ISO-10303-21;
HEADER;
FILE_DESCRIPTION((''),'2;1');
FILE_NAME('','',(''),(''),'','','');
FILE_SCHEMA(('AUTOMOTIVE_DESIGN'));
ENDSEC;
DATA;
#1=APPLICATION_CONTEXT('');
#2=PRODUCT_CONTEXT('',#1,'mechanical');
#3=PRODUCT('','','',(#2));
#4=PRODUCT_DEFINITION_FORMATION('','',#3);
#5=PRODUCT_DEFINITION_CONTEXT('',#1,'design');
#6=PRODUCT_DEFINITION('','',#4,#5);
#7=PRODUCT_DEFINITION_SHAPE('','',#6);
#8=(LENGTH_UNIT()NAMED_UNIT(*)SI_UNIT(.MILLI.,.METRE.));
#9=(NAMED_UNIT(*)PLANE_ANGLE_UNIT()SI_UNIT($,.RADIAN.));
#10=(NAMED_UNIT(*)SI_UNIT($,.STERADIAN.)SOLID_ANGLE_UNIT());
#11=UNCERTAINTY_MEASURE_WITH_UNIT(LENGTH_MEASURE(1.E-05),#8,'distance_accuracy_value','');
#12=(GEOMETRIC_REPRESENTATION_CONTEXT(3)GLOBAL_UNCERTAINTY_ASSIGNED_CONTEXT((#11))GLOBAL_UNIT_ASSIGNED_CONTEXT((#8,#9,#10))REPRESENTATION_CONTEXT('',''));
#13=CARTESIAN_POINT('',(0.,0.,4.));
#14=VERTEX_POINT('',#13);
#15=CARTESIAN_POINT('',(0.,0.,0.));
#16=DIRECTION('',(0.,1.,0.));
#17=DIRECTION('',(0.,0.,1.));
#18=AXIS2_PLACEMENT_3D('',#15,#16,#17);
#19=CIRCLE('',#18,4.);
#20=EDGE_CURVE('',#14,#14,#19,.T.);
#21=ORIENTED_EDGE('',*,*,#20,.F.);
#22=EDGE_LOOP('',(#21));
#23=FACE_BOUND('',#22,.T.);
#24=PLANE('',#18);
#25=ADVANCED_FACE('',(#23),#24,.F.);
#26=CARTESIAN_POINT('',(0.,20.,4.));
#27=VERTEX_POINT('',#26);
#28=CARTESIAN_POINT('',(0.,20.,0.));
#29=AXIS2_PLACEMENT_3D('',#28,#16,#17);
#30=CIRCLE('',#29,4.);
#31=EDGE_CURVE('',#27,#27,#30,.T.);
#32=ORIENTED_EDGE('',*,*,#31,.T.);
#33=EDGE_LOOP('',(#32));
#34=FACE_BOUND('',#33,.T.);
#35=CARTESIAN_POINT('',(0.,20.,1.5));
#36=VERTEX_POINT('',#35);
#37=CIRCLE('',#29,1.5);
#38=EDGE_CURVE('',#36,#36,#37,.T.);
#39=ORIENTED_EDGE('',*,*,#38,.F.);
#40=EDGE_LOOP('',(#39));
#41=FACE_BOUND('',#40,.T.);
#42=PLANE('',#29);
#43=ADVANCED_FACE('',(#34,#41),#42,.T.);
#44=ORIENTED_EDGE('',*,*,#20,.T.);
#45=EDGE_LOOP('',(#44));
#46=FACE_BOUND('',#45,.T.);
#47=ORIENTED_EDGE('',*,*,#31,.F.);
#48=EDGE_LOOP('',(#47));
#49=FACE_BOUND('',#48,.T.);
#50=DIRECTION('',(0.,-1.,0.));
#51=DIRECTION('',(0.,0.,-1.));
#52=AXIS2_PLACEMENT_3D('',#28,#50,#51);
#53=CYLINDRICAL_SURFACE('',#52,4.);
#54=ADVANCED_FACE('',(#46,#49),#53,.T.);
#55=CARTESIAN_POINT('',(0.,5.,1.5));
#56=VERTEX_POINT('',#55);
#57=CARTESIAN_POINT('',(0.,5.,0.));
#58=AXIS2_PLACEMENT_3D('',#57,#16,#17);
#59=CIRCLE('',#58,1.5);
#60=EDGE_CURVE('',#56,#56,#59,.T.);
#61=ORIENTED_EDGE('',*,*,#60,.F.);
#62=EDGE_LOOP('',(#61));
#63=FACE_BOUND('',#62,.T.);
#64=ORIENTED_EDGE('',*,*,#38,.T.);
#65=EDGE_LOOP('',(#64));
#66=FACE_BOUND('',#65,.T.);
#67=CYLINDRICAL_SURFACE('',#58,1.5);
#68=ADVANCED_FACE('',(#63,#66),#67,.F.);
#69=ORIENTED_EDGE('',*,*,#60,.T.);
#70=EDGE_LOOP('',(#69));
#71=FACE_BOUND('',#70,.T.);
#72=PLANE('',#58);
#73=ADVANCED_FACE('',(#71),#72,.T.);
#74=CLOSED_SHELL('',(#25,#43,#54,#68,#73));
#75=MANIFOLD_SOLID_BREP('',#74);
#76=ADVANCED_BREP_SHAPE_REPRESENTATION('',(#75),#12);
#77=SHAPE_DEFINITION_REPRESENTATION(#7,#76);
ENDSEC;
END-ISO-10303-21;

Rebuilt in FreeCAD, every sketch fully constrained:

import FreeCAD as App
import Part
import Sketcher

V = App.Vector

doc = App.newDocument("Part")
params = doc.addObject("Spreadsheet::Sheet", "Params")
for row, (alias, value) in enumerate([
    ("sketch1_diameter", "8 mm"),
    ("pad1_length", "20 mm"),
    ("sketch2_diameter", "3 mm"),
    ("pocket1_length", "15 mm"),
], start=1):
    params.set(f"A{row}", alias)
    params.set(f"B{row}", "=" + value)
    params.setAlias(f"B{row}", alias)

body = doc.addObject("PartDesign::Body", "Body")

sketch1 = body.newObject("Sketcher::SketchObject", "Sketch")
sketch1.AttachmentSupport = (doc.getObject("XZ_Plane"), [""])
sketch1.MapMode = "FlatFace"
sketch1.addGeometry(Part.Circle(V(0, 0, 0), V(0, 0, 1), 4), False)
sketch1.addConstraint([
    Sketcher.Constraint("Coincident", 0, 3, -1, 1),
    Sketcher.Constraint("Diameter", 0, 8.0),
])
sketch1.setExpression("Constraints[1]", "Params.sketch1_diameter")
pad1 = body.newObject("PartDesign::Pad", "Pad")
pad1.Profile = sketch1
pad1.setExpression("Length", "Params.pad1_length")
pad1.Reversed = True

sketch2 = body.newObject("Sketcher::SketchObject", "Sketch001")
sketch2.AttachmentSupport = (doc.getObject("XZ_Plane"), [""])
sketch2.MapMode = "FlatFace"
sketch2.AttachmentOffset = App.Placement(V(0, 0, -20), App.Rotation())
sketch2.addGeometry(Part.Circle(V(0, 0, 0), V(0, 0, 1), 1.5), False)
sketch2.addConstraint([
    Sketcher.Constraint("Coincident", 0, 3, -1, 1),
    Sketcher.Constraint("Diameter", 0, 3.0),
])
sketch2.setExpression("Constraints[1]", "Params.sketch2_diameter")
pocket1 = body.newObject("PartDesign::Pocket", "Pocket")
pocket1.Profile = sketch2
pocket1.setExpression("Length", "Params.pocket1_length")
pocket1.Reversed = True

doc.recompute()
